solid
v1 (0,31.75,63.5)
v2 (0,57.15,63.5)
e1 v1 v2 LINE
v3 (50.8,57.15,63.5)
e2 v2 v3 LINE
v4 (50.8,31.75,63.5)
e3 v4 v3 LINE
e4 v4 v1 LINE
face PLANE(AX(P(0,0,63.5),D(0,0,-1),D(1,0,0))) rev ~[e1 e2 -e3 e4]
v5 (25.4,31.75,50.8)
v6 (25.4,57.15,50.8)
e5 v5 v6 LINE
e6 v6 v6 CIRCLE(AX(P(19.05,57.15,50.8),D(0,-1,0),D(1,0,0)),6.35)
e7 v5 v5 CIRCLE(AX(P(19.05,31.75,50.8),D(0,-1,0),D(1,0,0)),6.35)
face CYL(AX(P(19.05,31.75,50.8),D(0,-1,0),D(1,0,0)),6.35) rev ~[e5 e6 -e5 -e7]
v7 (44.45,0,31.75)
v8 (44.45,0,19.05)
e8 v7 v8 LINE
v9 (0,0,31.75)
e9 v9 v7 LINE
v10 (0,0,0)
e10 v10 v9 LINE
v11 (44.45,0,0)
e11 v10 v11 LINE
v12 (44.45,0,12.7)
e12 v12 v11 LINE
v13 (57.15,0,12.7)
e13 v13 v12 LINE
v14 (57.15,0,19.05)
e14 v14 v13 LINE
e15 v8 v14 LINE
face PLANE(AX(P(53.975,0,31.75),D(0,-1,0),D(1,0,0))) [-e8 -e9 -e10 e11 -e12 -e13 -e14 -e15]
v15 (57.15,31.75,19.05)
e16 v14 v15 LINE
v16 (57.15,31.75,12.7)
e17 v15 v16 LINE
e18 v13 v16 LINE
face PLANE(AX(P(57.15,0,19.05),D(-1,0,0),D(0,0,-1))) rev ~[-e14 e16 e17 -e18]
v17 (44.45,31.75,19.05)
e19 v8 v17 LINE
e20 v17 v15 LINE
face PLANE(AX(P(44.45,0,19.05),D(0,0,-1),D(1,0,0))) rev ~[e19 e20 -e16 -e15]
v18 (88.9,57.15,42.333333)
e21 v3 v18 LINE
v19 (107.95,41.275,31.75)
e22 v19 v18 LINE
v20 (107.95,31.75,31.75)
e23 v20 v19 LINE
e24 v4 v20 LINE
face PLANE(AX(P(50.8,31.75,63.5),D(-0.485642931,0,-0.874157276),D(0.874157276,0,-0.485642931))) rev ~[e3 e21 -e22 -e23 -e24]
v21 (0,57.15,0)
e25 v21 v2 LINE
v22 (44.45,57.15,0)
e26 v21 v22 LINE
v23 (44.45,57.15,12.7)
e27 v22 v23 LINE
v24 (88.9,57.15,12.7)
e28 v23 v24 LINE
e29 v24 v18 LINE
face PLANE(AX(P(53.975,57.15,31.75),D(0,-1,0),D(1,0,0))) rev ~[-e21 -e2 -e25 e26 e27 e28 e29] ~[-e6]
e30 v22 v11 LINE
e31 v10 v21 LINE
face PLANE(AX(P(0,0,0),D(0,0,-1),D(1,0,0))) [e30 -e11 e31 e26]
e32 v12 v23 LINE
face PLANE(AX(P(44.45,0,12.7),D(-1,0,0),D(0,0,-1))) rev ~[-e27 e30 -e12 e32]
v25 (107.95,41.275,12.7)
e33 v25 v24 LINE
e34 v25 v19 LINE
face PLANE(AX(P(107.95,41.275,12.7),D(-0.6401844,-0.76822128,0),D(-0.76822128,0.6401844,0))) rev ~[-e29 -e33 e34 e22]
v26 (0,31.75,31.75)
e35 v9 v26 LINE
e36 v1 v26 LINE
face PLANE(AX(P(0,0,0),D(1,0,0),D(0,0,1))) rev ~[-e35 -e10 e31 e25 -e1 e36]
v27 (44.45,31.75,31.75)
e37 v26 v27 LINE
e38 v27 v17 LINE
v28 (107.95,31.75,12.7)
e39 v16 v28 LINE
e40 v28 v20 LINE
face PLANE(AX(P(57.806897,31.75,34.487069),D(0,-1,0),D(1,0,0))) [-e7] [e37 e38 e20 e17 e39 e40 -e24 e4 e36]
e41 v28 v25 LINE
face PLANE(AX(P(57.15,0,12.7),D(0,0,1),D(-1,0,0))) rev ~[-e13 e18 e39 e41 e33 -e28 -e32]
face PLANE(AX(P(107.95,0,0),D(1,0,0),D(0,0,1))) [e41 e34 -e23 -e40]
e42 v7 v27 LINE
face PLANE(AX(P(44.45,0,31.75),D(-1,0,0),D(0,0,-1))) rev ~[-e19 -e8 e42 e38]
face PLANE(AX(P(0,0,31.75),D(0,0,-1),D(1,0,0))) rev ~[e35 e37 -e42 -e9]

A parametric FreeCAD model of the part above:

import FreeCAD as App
import Part
import Sketcher

V = App.Vector
Q = App.Units.Quantity


def add_polygon(sketch, points):
    """Adds a closed chain of lines whose ends are joined by coincident constraints."""
    first, n = sketch.GeometryCount, len(points)
    for a, b in zip(points, points[1:] + points[:1]):
        sketch.addGeometry(Part.LineSegment(App.Vector(*a, 0), App.Vector(*b, 0)), False)
    for i in range(n):
        sketch.addConstraint(Sketcher.Constraint("Coincident", first + i, 2, first + (i + 1) % n, 1))

doc = App.newDocument("Part")
body = doc.addObject("PartDesign::Body", "Body")

sketch1 = body.newObject("Sketcher::SketchObject", "Sketch")
sketch1.AttachmentSupport = (doc.getObject("XZ_Plane"), [""])
sketch1.MapMode = "FlatFace"
add_polygon(sketch1, [(0, 63.5), (0, 0), (107.95, 0), (107.95, 63.5)])
sketch1.addConstraint([
    Sketcher.Constraint("Vertical", 0),
    Sketcher.Constraint("Horizontal", 1),
    Sketcher.Constraint("Vertical", 2),
    Sketcher.Constraint("Horizontal", 3),
    Sketcher.Constraint("Coincident", 0, 2, -1, 1),
    Sketcher.Constraint("DistanceY", 0, 2, 0, 1, Q("2.5 in")),
    Sketcher.Constraint("DistanceX", 1, 1, 1, 2, Q("4.25 in")),
])
pad1 = body.newObject("PartDesign::Pad", "Pad")
pad1.Profile = sketch1
pad1.Length = Q("2.25 in")
pad1.Reversed = True

sketch2 = body.newObject("Sketcher::SketchObject", "Sketch001")
sketch2.AttachmentSupport = (doc.getObject("XZ_Plane"), [""])
sketch2.MapMode = "FlatFace"
add_polygon(sketch2, [(0, 63.5), (0, 31.75), (44.45, 31.75), (44.45, 19.05), (57.15, 19.05), (57.15, 12.7), (44.45, 12.7), (44.45, 0), (107.95, 0), (107.95, 63.5)])
sketch2.addConstraint([
    Sketcher.Constraint("Vertical", 0),
    Sketcher.Constraint("Horizontal", 1),
    Sketcher.Constraint("Vertical", 2),
    Sketcher.Constraint("Horizontal", 3),
    Sketcher.Constraint("Vertical", 4),
    Sketcher.Constraint("Horizontal", 5),
    Sketcher.Constraint("Vertical", 6),
    Sketcher.Constraint("Horizontal", 7),
    Sketcher.Constraint("Vertical", 8),
    Sketcher.Constraint("Horizontal", 9),
    Sketcher.Constraint("PointOnObject", 0, 2, -2),
    Sketcher.Constraint("PointOnObject", 6, 2, -1),
    Sketcher.Constraint("Vertical", 2, 2, 5, 2),
    Sketcher.Constraint("Equal", 5, 2),
    Sketcher.Constraint("Equal", 2, 6),
    Sketcher.Constraint("Equal", 7, 8),
    Sketcher.Constraint("DistanceX", 3, 1, 3, 2, Q("0.5 in")),
    Sketcher.Constraint("DistanceX", 7, 1, 7, 2, Q("2.5 in")),
    Sketcher.Constraint("DistanceX", 1, 1, 1, 2, Q("1.75 in")),
    Sketcher.Constraint("DistanceY", 0, 2, 0, 1, Q("1.25 in")),
])
pocket1 = body.newObject("PartDesign::Pocket", "Pocket")
pocket1.Profile = sketch2
pocket1.Length = Q("1.25 in")

sketch3 = body.newObject("Sketcher::SketchObject", "Sketch002")
sketch3.AttachmentSupport = (doc.getObject("XZ_Plane"), [""])
sketch3.MapMode = "FlatFace"
sketch3.AttachmentOffset = App.Placement(V(0, 0, -1.25 * 25.4), App.Rotation())
add_polygon(sketch3, [(44.45, 12.7), (44.45, 0), (107.95, 0), (107.95, 12.7)])
sketch3.addConstraint([
    Sketcher.Constraint("Vertical", 0),
    Sketcher.Constraint("Horizontal", 1),
    Sketcher.Constraint("Vertical", 2),
    Sketcher.Constraint("Horizontal", 3),
    Sketcher.Constraint("PointOnObject", 0, 2, -1),
    Sketcher.Constraint("DistanceX", 1, 1, 1, 2, Q("2.5 in")),
    Sketcher.Constraint("DistanceY", 0, 2, 0, 1, Q("0.5 in")),
    Sketcher.Constraint("DistanceX", -1, 1, 0, 2, Q("1.75 in")),
])
pocket2 = body.newObject("PartDesign::Pocket", "Pocket001")
pocket2.Profile = sketch3
pocket2.Type = "ThroughAll"

sketch4 = body.newObject("Sketcher::SketchObject", "Sketch003")
sketch4.AttachmentSupport = (doc.getObject("XZ_Plane"), [""])
sketch4.MapMode = "FlatFace"
sketch4.AttachmentOffset = App.Placement(V(0, 0, -1.25 * 25.4), App.Rotation())
add_polygon(sketch4, [(50.8, 63.5), (107.95, 31.75), (107.95, 63.5)])
sketch4.addConstraint([
    Sketcher.Constraint("Vertical", 1),
    Sketcher.Constraint("Horizontal", 2),
    Sketcher.Constraint("DistanceX", -1, 1, 2, 2, Q("2 in")),
    Sketcher.Constraint("DistanceX", 2, 2, 2, 1, Q("2.25 in")),
    Sketcher.Constraint("DistanceY", 1, 1, 1, 2, Q("1.25 in")),
    Sketcher.Constraint("DistanceY", -1, 1, 1, 2, Q("2.5 in")),
])
pocket3 = body.newObject("PartDesign::Pocket", "Pocket002")
pocket3.Profile = sketch4
pocket3.Type = "ThroughAll"

sketch5 = body.newObject("Sketcher::SketchObject", "Sketch004")
sketch5.AttachmentSupport = (doc.getObject("XZ_Plane"), [""])
sketch5.MapMode = "FlatFace"
sketch5.AttachmentOffset = App.Placement(V(0, 0, -1.25 * 25.4), App.Rotation())
sketch5.addGeometry(Part.Circle(V(19.05, 50.8, 0), V(0, 0, 1), 6.35), False)
sketch5.addConstraint([
    Sketcher.Constraint("Diameter", 0, Q("0.5 in")),
    Sketcher.Constraint("DistanceY", -1, 1, 0, 3, Q("2 in")),
    Sketcher.Constraint("DistanceX", -1, 1, 0, 3, Q("0.75 in")),
])
pocket4 = body.newObject("PartDesign::Pocket", "Pocket003")
pocket4.Profile = sketch5
pocket4.Type = "ThroughAll"

sketch6 = body.newObject("Sketcher::SketchObject", "Sketch005")
sketch6.AttachmentSupport = (doc.getObject("XY_Plane"), [""])
sketch6.MapMode = "FlatFace"
sketch6.AttachmentOffset = App.Placement(V(0, 0, 0.5 * 25.4), App.Rotation())
add_polygon(sketch6, [(107.95, 57.15), (107.95, 41.275), (88.9, 57.15)])
sketch6.addConstraint([
    Sketcher.Constraint("Vertical", 0),
    Sketcher.Constraint("Horizontal", 2),
    Sketcher.Constraint("DistanceX", 2, 1, 2, 2, Q("0.75 in")),
    Sketcher.Constraint("DistanceX", -1, 1, 1, 2, Q("3.5 in")),
    Sketcher.Constraint("DistanceY", 0, 2, 0, 1, Q("0.625 in")),
    Sketcher.Constraint("DistanceY", -1, 1, 1, 2, Q("2.25 in")),
])
pocket5 = body.newObject("PartDesign::Pocket", "Pocket004")
pocket5.Profile = sketch6
pocket5.Type = "ThroughAll"
pocket5.Reversed = True

doc.recompute()
